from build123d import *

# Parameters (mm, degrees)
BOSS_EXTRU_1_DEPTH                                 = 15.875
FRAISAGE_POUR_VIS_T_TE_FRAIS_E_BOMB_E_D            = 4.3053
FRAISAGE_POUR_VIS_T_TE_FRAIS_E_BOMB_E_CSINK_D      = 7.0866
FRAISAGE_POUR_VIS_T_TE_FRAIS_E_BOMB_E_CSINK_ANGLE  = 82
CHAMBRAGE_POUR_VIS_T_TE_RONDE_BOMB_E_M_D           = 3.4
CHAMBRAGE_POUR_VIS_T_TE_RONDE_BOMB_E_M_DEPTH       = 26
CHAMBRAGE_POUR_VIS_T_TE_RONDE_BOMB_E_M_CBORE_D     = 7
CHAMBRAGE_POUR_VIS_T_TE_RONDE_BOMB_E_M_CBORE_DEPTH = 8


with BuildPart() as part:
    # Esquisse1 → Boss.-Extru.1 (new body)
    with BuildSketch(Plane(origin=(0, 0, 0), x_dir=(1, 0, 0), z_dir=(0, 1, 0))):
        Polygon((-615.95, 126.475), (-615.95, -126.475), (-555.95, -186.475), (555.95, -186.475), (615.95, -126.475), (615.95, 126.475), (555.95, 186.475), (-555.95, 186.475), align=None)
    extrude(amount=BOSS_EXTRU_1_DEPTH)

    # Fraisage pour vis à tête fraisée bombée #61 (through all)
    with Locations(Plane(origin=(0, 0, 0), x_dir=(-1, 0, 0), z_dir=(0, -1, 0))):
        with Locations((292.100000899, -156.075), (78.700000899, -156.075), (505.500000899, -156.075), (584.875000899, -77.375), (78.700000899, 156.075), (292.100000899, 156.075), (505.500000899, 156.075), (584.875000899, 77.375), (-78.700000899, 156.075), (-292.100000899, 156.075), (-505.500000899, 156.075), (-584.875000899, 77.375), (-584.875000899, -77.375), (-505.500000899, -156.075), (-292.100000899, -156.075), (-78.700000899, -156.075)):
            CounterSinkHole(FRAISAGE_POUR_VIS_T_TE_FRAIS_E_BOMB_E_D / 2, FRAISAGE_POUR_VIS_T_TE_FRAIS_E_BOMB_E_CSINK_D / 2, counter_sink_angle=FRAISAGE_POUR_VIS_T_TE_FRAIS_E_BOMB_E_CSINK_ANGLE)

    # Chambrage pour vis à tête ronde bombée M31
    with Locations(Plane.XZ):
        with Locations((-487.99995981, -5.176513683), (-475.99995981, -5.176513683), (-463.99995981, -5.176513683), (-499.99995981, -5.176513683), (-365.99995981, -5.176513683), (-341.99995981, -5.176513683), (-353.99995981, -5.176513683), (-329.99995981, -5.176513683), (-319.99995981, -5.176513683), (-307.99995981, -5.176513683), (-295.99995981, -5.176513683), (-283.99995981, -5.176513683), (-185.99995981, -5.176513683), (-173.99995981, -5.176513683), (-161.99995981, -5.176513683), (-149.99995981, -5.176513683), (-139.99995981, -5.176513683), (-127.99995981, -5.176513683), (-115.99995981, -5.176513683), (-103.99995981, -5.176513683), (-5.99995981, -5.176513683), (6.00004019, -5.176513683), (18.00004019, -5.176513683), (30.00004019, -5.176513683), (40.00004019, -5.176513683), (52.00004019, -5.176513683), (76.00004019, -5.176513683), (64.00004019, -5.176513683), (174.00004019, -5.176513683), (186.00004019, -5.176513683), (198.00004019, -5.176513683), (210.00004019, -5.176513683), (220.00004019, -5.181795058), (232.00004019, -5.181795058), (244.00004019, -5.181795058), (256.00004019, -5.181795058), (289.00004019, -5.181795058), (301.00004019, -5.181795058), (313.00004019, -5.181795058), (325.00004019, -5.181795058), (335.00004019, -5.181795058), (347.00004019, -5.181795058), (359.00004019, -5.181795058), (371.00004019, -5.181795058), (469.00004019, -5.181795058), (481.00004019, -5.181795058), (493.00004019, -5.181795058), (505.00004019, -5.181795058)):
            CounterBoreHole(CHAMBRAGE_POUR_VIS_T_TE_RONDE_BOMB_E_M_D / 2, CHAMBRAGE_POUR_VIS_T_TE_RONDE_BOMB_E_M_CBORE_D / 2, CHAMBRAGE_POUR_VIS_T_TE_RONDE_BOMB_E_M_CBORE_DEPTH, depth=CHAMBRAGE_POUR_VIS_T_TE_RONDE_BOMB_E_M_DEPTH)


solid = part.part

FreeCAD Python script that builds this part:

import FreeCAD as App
import Part
import Sketcher

V = App.Vector


def add_polygon(sketch, points):
    """Adds a closed chain of lines whose ends are joined by coincident constraints."""
    first, n = sketch.GeometryCount, len(points)
    for a, b in zip(points, points[1:] + points[:1]):
        sketch.addGeometry(Part.LineSegment(App.Vector(*a, 0), App.Vector(*b, 0)), False)
    for i in range(n):
        sketch.addConstraint(Sketcher.Constraint("Coincident", first + i, 2, first + (i + 1) % n, 1))

doc = App.newDocument("Part")
body = doc.addObject("PartDesign::Body", "Body")

sketch1 = body.newObject("Sketcher::SketchObject", "Sketch")
sketch1.AttachmentSupport = (doc.getObject("XZ_Plane"), [""])
sketch1.MapMode = "FlatFace"
add_polygon(sketch1, [(-616, -126), (-616, 126), (-556, 186), (556, 186), (616, 126), (616, -126), (556, -186), (-556, -186)])
sketch1.addConstraint([
    Sketcher.Constraint("Vertical", 0),
    Sketcher.Constraint("Horizontal", 2),
    Sketcher.Constraint("Vertical", 4),
    Sketcher.Constraint("Horizontal", 6),
    Sketcher.Constraint("Symmetric", 0, 2, 4, 2, -1, 1),
    Sketcher.Constraint("Symmetric", 1, 2, 5, 2, -1, 1),
    Sketcher.Constraint("Perpendicular", 1, 3),
    Sketcher.Constraint("Perpendicular", 5, 7),
    Sketcher.Constraint("Horizontal", 0, 2, 3, 2),
    Sketcher.Constraint("Horizontal", 4, 2, 7, 2),
    Sketcher.Constraint("Vertical", 2, 2, 5, 2),
    Sketcher.Constraint("DistanceX", 2, 1, 2, 2, 1111.9),
    Sketcher.Constraint("DistanceX", 0, 2, 1, 2, 60.0),
    Sketcher.Constraint("DistanceY", 0, 1, 0, 2, 252.95),
])
pad1 = body.newObject("PartDesign::Pad", "Pad")
pad1.Profile = sketch1
pad1.Length = 15.875
pad1.Reversed = True

sketch2 = body.newObject("Sketcher::SketchObject", "Sketch001")
sketch2.AttachmentSupport = (doc.getObject("XZ_Plane"), [""])
sketch2.MapMode = "FlatFace"
sketch2.addGeometry([
    Part.Circle(V(-292.1, 156.1, 0), V(0, 0, 1), 2.2),
    Part.Circle(V(-78.7, 156.1, 0), V(0, 0, 1), 2.2),
    Part.Circle(V(-505.5, 156.1, 0), V(0, 0, 1), 2.2),
    Part.Circle(V(-584.9, 77.4, 0), V(0, 0, 1), 2.2),
    Part.Circle(V(-78.7, -156.1, 0), V(0, 0, 1), 2.2),
    Part.Circle(V(-292.1, -156.1, 0), V(0, 0, 1), 2.2),
    Part.Circle(V(-505.5, -156.1, 0), V(0, 0, 1), 2.2),
    Part.Circle(V(-584.9, -77.4, 0), V(0, 0, 1), 2.2),
    Part.Circle(V(78.7, -156.1, 0), V(0, 0, 1), 2.2),
    Part.Circle(V(292.1, -156.1, 0), V(0, 0, 1), 2.2),
    Part.Circle(V(505.5, -156.1, 0), V(0, 0, 1), 2.2),
    Part.Circle(V(584.9, -77.4, 0), V(0, 0, 1), 2.2),
    Part.Circle(V(584.9, 77.4, 0), V(0, 0, 1), 2.2),
    Part.Circle(V(505.5, 156.1, 0), V(0, 0, 1), 2.2),
    Part.Circle(V(292.1, 156.1, 0), V(0, 0, 1), 2.2),
    Part.Circle(V(78.7, 156.1, 0), V(0, 0, 1), 2.2),
], False)
sketch2.addConstraint([
    Sketcher.Constraint("Equal", 0, 1),
    Sketcher.Constraint("Equal", 1, 2),
    Sketcher.Constraint("Equal", 2, 3),
    Sketcher.Constraint("Equal", 3, 4),
    Sketcher.Constraint("Equal", 4, 5),
    Sketcher.Constraint("Equal", 5, 6),
    Sketcher.Constraint("Equal", 6, 7),
    Sketcher.Constraint("Equal", 7, 8),
    Sketcher.Constraint("Equal", 8, 9),
    Sketcher.Constraint("Equal", 9, 10),
    Sketcher.Constraint("Equal", 10, 11),
    Sketcher.Constraint("Equal", 11, 12),
    Sketcher.Constraint("Equal", 12, 13),
    Sketcher.Constraint("Equal", 13, 14),
    Sketcher.Constraint("Equal", 14, 15),
    Sketcher.Constraint("Symmetric", 1, 3, 8, 3, -1, 1),
    Sketcher.Constraint("Symmetric", 0, 3, 9, 3, -1, 1),
    Sketcher.Constraint("Symmetric", 2, 3, 10, 3, -1, 1),
    Sketcher.Constraint("Symmetric", 3, 3, 11, 3, -1, 1),
    Sketcher.Constraint("Symmetric", 7, 3, 12, 3, -1, 1),
    Sketcher.Constraint("Symmetric", 6, 3, 13, 3, -1, 1),
    Sketcher.Constraint("Symmetric", 5, 3, 14, 3, -1, 1),
    Sketcher.Constraint("Symmetric", 4, 3, 15, 3, -1, 1),
    Sketcher.Constraint("Symmetric", 4, 3, 8, 3, -2),
    Sketcher.Constraint("Symmetric", 5, 3, 9, 3, -2),
    Sketcher.Constraint("Symmetric", 6, 3, 10, 3, -2),
    Sketcher.Constraint("Symmetric", 7, 3, 11, 3, -2),
    Sketcher.Constraint("Horizontal", 0, 3, 1, 3),
    Sketcher.Constraint("Horizontal", 1, 3, 2, 3),
    Sketcher.Constraint("Diameter", 0, 4.3053),
    Sketcher.Constraint("DistanceX", 0, 3, -1, 1, 292.100001),
    Sketcher.Constraint("DistanceX", 1, 3, -1, 1, 78.700001),
    Sketcher.Constraint("DistanceX", 2, 3, -1, 1, 505.500001),
    Sketcher.Constraint("DistanceY", 3, 3, 2, 3, 78.7),
    Sketcher.Constraint("DistanceY", 4, 3, 1, 3, 312.15),
    Sketcher.Constraint("DistanceX", 3, 3, -1, 1, 584.875001),
])
doc.recompute()
hole = body.newObject("PartDesign::Hole", "Hole")
hole.Profile = sketch2
hole.ThreadType = "None"
hole.Diameter = 4.3053
hole.DepthType = "ThroughAll"
hole.HoleCutType = "Countersink"
hole.HoleCutDiameter = 7.0866
hole.HoleCutCountersinkAngle = 82

sketch3 = body.newObject("Sketcher::SketchObject", "Sketch002")
sketch3.AttachmentSupport = (doc.getObject("XZ_Plane"), [""])
sketch3.MapMode = "FlatFace"
sketch3.addGeometry([
    Part.Circle(V(-488, -5.2, 0), V(0, 0, 1), 1.7),
    Part.Circle(V(-476, -5.2, 0), V(0, 0, 1), 1.7),
    Part.Circle(V(-464, -5.2, 0), V(0, 0, 1), 1.7),
    Part.Circle(V(-500, -5.2, 0), V(0, 0, 1), 1.7),
    Part.Circle(V(-366, -5.2, 0), V(0, 0, 1), 1.7),
    Part.Circle(V(-342, -5.2, 0), V(0, 0, 1), 1.7),
    Part.Circle(V(-354, -5.2, 0), V(0, 0, 1), 1.7),
    Part.Circle(V(-330, -5.2, 0), V(0, 0, 1), 1.7),
    Part.Circle(V(-320, -5.2, 0), V(0, 0, 1), 1.7),
    Part.Circle(V(-308, -5.2, 0), V(0, 0, 1), 1.7),
    Part.Circle(V(-296, -5.2, 0), V(0, 0, 1), 1.7),
    Part.Circle(V(-284, -5.2, 0), V(0, 0, 1), 1.7),
    Part.Circle(V(-186, -5.2, 0), V(0, 0, 1), 1.7),
    Part.Circle(V(-174, -5.2, 0), V(0, 0, 1), 1.7),
    Part.Circle(V(-162, -5.2, 0), V(0, 0, 1), 1.7),
    Part.Circle(V(-150, -5.2, 0), V(0, 0, 1), 1.7),
    Part.Circle(V(-140, -5.2, 0), V(0, 0, 1), 1.7),
    Part.Circle(V(-128, -5.2, 0), V(0, 0, 1), 1.7),
    Part.Circle(V(-116, -5.2, 0), V(0, 0, 1), 1.7),
    Part.Circle(V(-104, -5.2, 0), V(0, 0, 1), 1.7),
    Part.Circle(V(-6, -5.2, 0), V(0, 0, 1), 1.7),
    Part.Circle(V(6, -5.2, 0), V(0, 0, 1), 1.7),
    Part.Circle(V(18, -5.2, 0), V(0, 0, 1), 1.7),
    Part.Circle(V(30, -5.2, 0), V(0, 0, 1), 1.7),
    Part.Circle(V(40, -5.2, 0), V(0, 0, 1), 1.7),
    Part.Circle(V(52, -5.2, 0), V(0, 0, 1), 1.7),
    Part.Circle(V(76, -5.2, 0), V(0, 0, 1), 1.7),
    Part.Circle(V(64, -5.2, 0), V(0, 0, 1), 1.7),
    Part.Circle(V(174, -5.2, 0), V(0, 0, 1), 1.7),
    Part.Circle(V(186, -5.2, 0), V(0, 0, 1), 1.7),
    Part.Circle(V(198, -5.2, 0), V(0, 0, 1), 1.7),
    Part.Circle(V(210, -5.2, 0), V(0, 0, 1), 1.7),
    Part.Circle(V(220, -5.2, 0), V(0, 0, 1), 1.7),
    Part.Circle(V(232, -5.2, 0), V(0, 0, 1), 1.7),
    Part.Circle(V(244, -5.2, 0), V(0, 0, 1), 1.7),
    Part.Circle(V(256, -5.2, 0), V(0, 0, 1), 1.7),
    Part.Circle(V(289, -5.2, 0), V(0, 0, 1), 1.7),
    Part.Circle(V(301, -5.2, 0), V(0, 0, 1), 1.7),
    Part.Circle(V(313, -5.2, 0), V(0, 0, 1), 1.7),
    Part.Circle(V(325, -5.2, 0), V(0, 0, 1), 1.7),
    Part.Circle(V(335, -5.2, 0), V(0, 0, 1), 1.7),
    Part.Circle(V(347, -5.2, 0), V(0, 0, 1), 1.7),
    Part.Circle(V(359, -5.2, 0), V(0, 0, 1), 1.7),
    Part.Circle(V(371, -5.2, 0), V(0, 0, 1), 1.7),
    Part.Circle(V(469, -5.2, 0), V(0, 0, 1), 1.7),
    Part.Circle(V(481, -5.2, 0), V(0, 0, 1), 1.7),
    Part.Circle(V(493, -5.2, 0), V(0, 0, 1), 1.7),
    Part.Circle(V(505, -5.2, 0), V(0, 0, 1), 1.7),
], False)
sketch3.addConstraint([
    Sketcher.Constraint("Equal", 0, 1),
    Sketcher.Constraint("Equal", 1, 2),
    Sketcher.Constraint("Equal", 2, 3),
    Sketcher.Constraint("Equal", 3, 4),
    Sketcher.Constraint("Equal", 4, 5),
    Sketcher.Constraint("Equal", 5, 6),
    Sketcher.Constraint("Equal", 6, 7),
    Sketcher.Constraint("Equal", 7, 8),
    Sketcher.Constraint("Equal", 8, 9),
    Sketcher.Constraint("Equal", 9, 10),
    Sketcher.Constraint("Equal", 10, 11),
    Sketcher.Constraint("Equal", 11, 12),
    Sketcher.Constraint("Equal", 12, 13),
    Sketcher.Constraint("Equal", 13, 14),
    Sketcher.Constraint("Equal", 14, 15),
    Sketcher.Constraint("Equal", 15, 16),
    Sketcher.Constraint("Equal", 16, 17),
    Sketcher.Constraint("Equal", 17, 18),
    Sketcher.Constraint("Equal", 18, 19),
    Sketcher.Constraint("Equal", 19, 20),
    Sketcher.Constraint("Equal", 20, 21),
    Sketcher.Constraint("Equal", 21, 22),
    Sketcher.Constraint("Equal", 22, 23),
    Sketcher.Constraint("Equal", 23, 24),
    Sketcher.Constraint("Equal", 24, 25),
    Sketcher.Constraint("Equal", 25, 26),
    Sketcher.Constraint("Equal", 26, 27),
    Sketcher.Constraint("Equal", 27, 28),
    Sketcher.Constraint("Equal", 28, 29),
    Sketcher.Constraint("Equal", 29, 30),
    Sketcher.Constraint("Equal", 30, 31),
    Sketcher.Constraint("Equal", 31, 32),
    Sketcher.Constraint("Equal", 32, 33),
    Sketcher.Constraint("Equal", 33, 34),
    Sketcher.Constraint("Equal", 34, 35),
    Sketcher.Constraint("Equal", 35, 36),
    Sketcher.Constraint("Equal", 36, 37),
    Sketcher.Constraint("Equal", 37, 38),
    Sketcher.Constraint("Equal", 38, 39),
    Sketcher.Constraint("Equal", 39, 40),
    Sketcher.Constraint("Equal", 40, 41),
    Sketcher.Constraint("Equal", 41, 42),
    Sketcher.Constraint("Equal", 42, 43),
    Sketcher.Constraint("Equal", 43, 44),
    Sketcher.Constraint("Equal", 44, 45),
    Sketcher.Constraint("Equal", 45, 46),
    Sketcher.Constraint("Equal", 46, 47),
    Sketcher.Constraint("Horizontal", 0, 3, 1, 3),
    Sketcher.Constraint("Horizontal", 1, 3, 2, 3),
    Sketcher.Constraint("Horizontal", 2, 3, 3, 3),
    Sketcher.Constraint("Horizontal", 3, 3, 4, 3),
    Sketcher.Constraint("Horizontal", 4, 3, 5, 3),
    Sketcher.Constraint("Horizontal", 5, 3, 6, 3),
    Sketcher.Constraint("Horizontal", 6, 3, 7, 3),
    Sketcher.Constraint("Horizontal", 7, 3, 8, 3),
    Sketcher.Constraint("Horizontal", 8, 3, 9, 3),
    Sketcher.Constraint("Horizontal", 9, 3, 10, 3),
    Sketcher.Constraint("Horizontal", 10, 3, 11, 3),
    Sketcher.Constraint("Horizontal", 11, 3, 12, 3),
    Sketcher.Constraint("Horizontal", 12, 3, 13, 3),
    Sketcher.Constraint("Horizontal", 13, 3, 14, 3),
    Sketcher.Constraint("Horizontal", 14, 3, 15, 3),
    Sketcher.Constraint("Horizontal", 15, 3, 16, 3),
    Sketcher.Constraint("Horizontal", 16, 3, 17, 3),
    Sketcher.Constraint("Horizontal", 17, 3, 18, 3),
    Sketcher.Constraint("Horizontal", 18, 3, 19, 3),
    Sketcher.Constraint("Horizontal", 19, 3, 20, 3),
    Sketcher.Constraint("Horizontal", 20, 3, 21, 3),
    Sketcher.Constraint("Horizontal", 21, 3, 22, 3),
    Sketcher.Constraint("Horizontal", 22, 3, 23, 3),
    Sketcher.Constraint("Horizontal", 23, 3, 24, 3),
    Sketcher.Constraint("Horizontal", 24, 3, 25, 3),
    Sketcher.Constraint("Horizontal", 25, 3, 26, 3),
    Sketcher.Constraint("Horizontal", 26, 3, 27, 3),
    Sketcher.Constraint("Horizontal", 27, 3, 28, 3),
    Sketcher.Constraint("Horizontal", 28, 3, 29, 3),
    Sketcher.Constraint("Horizontal", 29, 3, 30, 3),
    Sketcher.Constraint("Horizontal", 30, 3, 31, 3),
    Sketcher.Constraint("Horizontal", 32, 3, 33, 3),
    Sketcher.Constraint("Horizontal", 33, 3, 34, 3),
    Sketcher.Constraint("Horizontal", 34, 3, 35, 3),
    Sketcher.Constraint("Horizontal", 35, 3, 36, 3),
    Sketcher.Constraint("Horizontal", 36, 3, 37, 3),
    Sketcher.Constraint("Horizontal", 37, 3, 38, 3),
    Sketcher.Constraint("Horizontal", 38, 3, 39, 3),
    Sketcher.Constraint("Horizontal", 39, 3, 40, 3),
    Sketcher.Constraint("Horizontal", 40, 3, 41, 3),
    Sketcher.Constraint("Horizontal", 41, 3, 42, 3),
    Sketcher.Constraint("Horizontal", 42, 3, 43, 3),
    Sketcher.Constraint("Horizontal", 43, 3, 44, 3),
    Sketcher.Constraint("Horizontal", 44, 3, 45, 3),
    Sketcher.Constraint("Horizontal", 45, 3, 46, 3),
    Sketcher.Constraint("Horizontal", 46, 3, 47, 3),
    Sketcher.Constraint("Diameter", 0, 3.4),
    Sketcher.Constraint("DistanceX", 0, 3, 1, 3, 12.0),
    Sketcher.Constraint("DistanceX", 1, 3, 2, 3, 12.0),
    Sketcher.Constraint("DistanceX", 3, 3, 0, 3, 12.0),
    Sketcher.Constraint("DistanceX", 2, 3, 4, 3, 98.0),
    Sketcher.Constraint("DistanceX", 4, 3, 5, 3, 24.0),
    Sketcher.Constraint("DistanceX", 4, 3, 6, 3, 12.0),
    Sketcher.Constraint("DistanceX", 5, 3, 7, 3, 12.0),
    Sketcher.Constraint("DistanceX", 7, 3, 8, 3, 10.0),
    Sketcher.Constraint("DistanceX", 8, 3, 9, 3, 12.0),
    Sketcher.Constraint("DistanceX", 9, 3, 10, 3, 12.0),
    Sketcher.Constraint("DistanceX", 10, 3, 11, 3, 12.0),
    Sketcher.Constraint("DistanceX", 11, 3, 12, 3, 98.0),
    Sketcher.Constraint("DistanceX", 12, 3, 13, 3, 12.0),
    Sketcher.Constraint("DistanceX", 13, 3, 14, 3, 12.0),
    Sketcher.Constraint("DistanceX", 14, 3, 15, 3, 12.0),
    Sketcher.Constraint("DistanceX", 15, 3, 16, 3, 10.0),
    Sketcher.Constraint("DistanceX", 16, 3, 17, 3, 12.0),
    Sketcher.Constraint("DistanceX", 17, 3, 18, 3, 12.0),
    Sketcher.Constraint("DistanceX", 18, 3, 19, 3, 12.0),
    Sketcher.Constraint("DistanceX", 19, 3, 20, 3, 98.0),
    Sketcher.Constraint("DistanceX", 20, 3, 21, 3, 12.0),
    Sketcher.Constraint("DistanceX", 21, 3, 22, 3, 12.0),
    Sketcher.Constraint("DistanceX", 22, 3, 23, 3, 12.0),
    Sketcher.Constraint("DistanceX", 23, 3, 24, 3, 10.0),
    Sketcher.Constraint("DistanceX", 24, 3, 25, 3, 12.0),
    Sketcher.Constraint("DistanceX", 25, 3, 26, 3, 24.0),
    Sketcher.Constraint("DistanceX", 27, 3, 26, 3, 12.0),
    Sketcher.Constraint("DistanceX", 26, 3, 28, 3, 98.0),
    Sketcher.Constraint("DistanceX", 28, 3, 29, 3, 12.0),
    Sketcher.Constraint("DistanceX", 29, 3, 30, 3, 12.0),
    Sketcher.Constraint("DistanceX", 30, 3, 31, 3, 12.0),
    Sketcher.Constraint("DistanceX", 31, 3, 32, 3, 10.0),
    Sketcher.Constraint("DistanceX", 32, 3, 33, 3, 12.0),
    Sketcher.Constraint("DistanceX", 33, 3, 34, 3, 12.0),
    Sketcher.Constraint("DistanceX", 34, 3, 35, 3, 12.0),
    Sketcher.Constraint("DistanceX", 35, 3, 36, 3, 33.0),
    Sketcher.Constraint("DistanceX", 36, 3, 37, 3, 12.0),
    Sketcher.Constraint("DistanceX", 37, 3, 38, 3, 12.0),
    Sketcher.Constraint("DistanceX", 38, 3, 39, 3, 12.0),
    Sketcher.Constraint("DistanceX", 39, 3, 40, 3, 10.0),
    Sketcher.Constraint("DistanceX", 40, 3, 41, 3, 12.0),
    Sketcher.Constraint("DistanceX", 41, 3, 42, 3, 12.0),
    Sketcher.Constraint("DistanceX", 42, 3, 43, 3, 12.0),
    Sketcher.Constraint("DistanceX", 43, 3, 44, 3, 98.0),
    Sketcher.Constraint("DistanceX", 44, 3, 45, 3, 12.0),
    Sketcher.Constraint("DistanceX", 45, 3, 46, 3, 12.0),
    Sketcher.Constraint("DistanceX", 46, 3, 47, 3, 12.0),
    Sketcher.Constraint("DistanceX", 0, 3, -1, 1, 487.99996),
    Sketcher.Constraint("DistanceY", 32, 3, 31, 3, 0.005281),
    Sketcher.Constraint("DistanceY", 0, 3, -1, 1, 5.176514),
])
doc.recompute()
hole2 = body.newObject("PartDesign::Hole", "Hole001")
hole2.Profile = sketch3
hole2.ThreadType = "None"
hole2.Diameter = 3.4
hole2.DepthType = "Dimension"
hole2.Depth = 26
hole2.DrillPoint = "Flat"
hole2.HoleCutType = "Counterbore"
hole2.HoleCutDiameter = 7
hole2.HoleCutDepth = 8

doc.recompute()
